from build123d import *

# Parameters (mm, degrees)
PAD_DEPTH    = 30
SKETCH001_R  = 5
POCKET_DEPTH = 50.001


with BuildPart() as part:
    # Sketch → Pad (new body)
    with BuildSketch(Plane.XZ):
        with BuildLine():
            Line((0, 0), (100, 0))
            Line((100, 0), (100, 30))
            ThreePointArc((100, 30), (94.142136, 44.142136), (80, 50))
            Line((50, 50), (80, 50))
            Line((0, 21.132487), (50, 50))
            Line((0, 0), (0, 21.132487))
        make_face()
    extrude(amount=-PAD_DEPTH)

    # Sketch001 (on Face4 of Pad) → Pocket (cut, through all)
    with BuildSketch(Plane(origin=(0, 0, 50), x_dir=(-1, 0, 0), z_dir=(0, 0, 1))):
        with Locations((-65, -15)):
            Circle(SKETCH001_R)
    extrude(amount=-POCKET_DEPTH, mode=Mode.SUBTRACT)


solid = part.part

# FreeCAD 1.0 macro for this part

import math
import FreeCAD as App
import Part
import Sketcher

V = App.Vector
Q = App.Units.Quantity

doc = App.newDocument("Part")
body = doc.addObject("PartDesign::Body", "Body")

sketch1 = body.newObject("Sketcher::SketchObject", "Sketch")
sketch1.AttachmentSupport = (doc.getObject("XZ_Plane"), [""])
sketch1.MapMode = "FlatFace"
sketch1.addGeometry(Part.LineSegment(V(0, 0, 0), V(100, 0, 0)), False)
sketch1.addGeometry(Part.LineSegment(V(100, 0, 0), V(100, 30, 0)), False)
sketch1.addGeometry(Part.ArcOfCircle(Part.Circle(V(80, 30, 0), V(0, 0, 1), 20), math.radians(0), math.radians(90)), False)
sketch1.addGeometry(Part.LineSegment(V(80, 50, 0), V(50, 50, 0)), False)
sketch1.addGeometry(Part.LineSegment(V(50, 50, 0), V(0, 21, 0)), False)
sketch1.addGeometry(Part.LineSegment(V(0, 21, 0), V(0, 0, 0)), False)
sketch1.addConstraint(Sketcher.Constraint("Coincident", 0, 2, 1, 1))
sketch1.addConstraint(Sketcher.Constraint("Tangent", 1, 2, 2, 1))
sketch1.addConstraint(Sketcher.Constraint("Tangent", 2, 2, 3, 1))
sketch1.addConstraint(Sketcher.Constraint("Coincident", 3, 2, 4, 1))
sketch1.addConstraint(Sketcher.Constraint("Coincident", 4, 2, 5, 1))
sketch1.addConstraint(Sketcher.Constraint("Coincident", 5, 2, 0, 1))
sketch1.addConstraint(Sketcher.Constraint("Horizontal", 0))
sketch1.addConstraint(Sketcher.Constraint("Vertical", 1))
sketch1.addConstraint(Sketcher.Constraint("Horizontal", 3))
sketch1.addConstraint(Sketcher.Constraint("Vertical", 5))
sketch1.addConstraint(Sketcher.Constraint("Coincident", 5, 2, -1, 1))
sketch1.addConstraint(Sketcher.Constraint("Equal", 3, 1))
sketch1.addConstraint(Sketcher.Constraint("Radius", 2, Q("19.999999 mm")))
sketch1.addConstraint(Sketcher.Constraint("DistanceX", 0, 1, 0, 2, Q("100 mm")))
sketch1.addConstraint(Sketcher.Constraint("DistanceX", 3, 2, 3, 1, Q("30 mm")))
sketch1.addConstraint(Sketcher.Constraint("Angle", 4, Q("-150 deg")))
pad1 = body.newObject("PartDesign::Pad", "Pad")
pad1.Profile = sketch1
pad1.Length = 30
pad1.Reversed = True

sketch2 = body.newObject("Sketcher::SketchObject", "Sketch001")
sketch2.AttachmentSupport = (doc.getObject("XY_Plane"), [""])
sketch2.MapMode = "FlatFace"
sketch2.AttachmentOffset = App.Placement(V(0, 0, 50), App.Rotation())
sketch2.addGeometry(Part.Circle(V(65, 15, 0), V(0, 0, 1), 5), False)
sketch2.addConstraint(Sketcher.Constraint("Diameter", 0, Q("10 mm")))
sketch2.addConstraint(Sketcher.Constraint("DistanceX", -1, 1, 0, 3, Q("65 mm")))
sketch2.addConstraint(Sketcher.Constraint("DistanceY", -1, 1, 0, 3, Q("15 mm")))
pocket1 = body.newObject("PartDesign::Pocket", "Pocket")
pocket1.Profile = sketch2
pocket1.Type = "ThroughAll"

doc.recompute()
